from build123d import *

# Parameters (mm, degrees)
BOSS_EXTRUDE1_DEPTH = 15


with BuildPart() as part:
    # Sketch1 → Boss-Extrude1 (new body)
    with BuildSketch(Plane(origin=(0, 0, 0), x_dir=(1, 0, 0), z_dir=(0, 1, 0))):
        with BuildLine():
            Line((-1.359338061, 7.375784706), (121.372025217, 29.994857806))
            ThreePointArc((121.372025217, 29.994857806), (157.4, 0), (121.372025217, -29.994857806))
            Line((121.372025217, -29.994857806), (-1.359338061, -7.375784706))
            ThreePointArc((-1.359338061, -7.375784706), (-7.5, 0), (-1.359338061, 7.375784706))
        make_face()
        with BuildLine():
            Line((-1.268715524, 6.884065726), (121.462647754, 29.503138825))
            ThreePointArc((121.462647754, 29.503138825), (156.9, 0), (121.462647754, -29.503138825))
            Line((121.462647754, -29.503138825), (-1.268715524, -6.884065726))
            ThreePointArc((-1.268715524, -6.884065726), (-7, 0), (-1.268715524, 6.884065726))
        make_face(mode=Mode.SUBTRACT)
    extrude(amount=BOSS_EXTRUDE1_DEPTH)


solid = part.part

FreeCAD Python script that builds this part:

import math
import FreeCAD as App
import Part
import Sketcher
from FreeCAD import Vector
Q = App.Units.Quantity

doc = App.newDocument("Part")
params = doc.addObject("Spreadsheet::Sheet", "Params")
for row, (alias, value) in enumerate([
    ("sketch1_radius", "30 mm"),
    ("sketch1_radius2", "7 mm"),
    ("sketch1_radius3", "7.5 mm"),
    ("pad1_length", "15 mm"),
], start=1):
    params.set(f"A{row}", alias)
    params.set(f"B{row}", "=" + value)
    params.setAlias(f"B{row}", alias)

body = doc.addObject("PartDesign::Body", "Body")

# Sketch on XZ plane
sketch1 = doc.addObject("Sketcher::SketchObject", "Sketch")
body.addObject(sketch1)
sketch1.AttachmentSupport = (doc.XZ_Plane, [""])
sketch1.MapMode = "FlatFace"
sketch1.addGeometry([
    Part.LineSegment(Vector(121, -30, 0), Vector(-1, -7, 0)),  # 0
    Part.ArcOfCircle(Part.Circle(Vector(0, 0, 0), Vector(0, 0, 1), 7), math.radians(100), math.radians(260)),  # 1
    Part.LineSegment(Vector(-1, 7, 0), Vector(121, 30, 0)),  # 2
    Part.ArcOfCircle(Part.Circle(Vector(127, 0, 0), Vector(0, 0, 1), 30), math.radians(-100), math.radians(100)),  # 3
    Part.LineSegment(Vector(-1, -7, 0), Vector(121, -30, 0)),  # 4
    Part.ArcOfCircle(Part.Circle(Vector(127, 0, 0), Vector(0, 0, 1), 30), math.radians(-100), math.radians(100)),  # 5
    Part.LineSegment(Vector(121, 30, 0), Vector(-1, 7, 0)),  # 6
    Part.ArcOfCircle(Part.Circle(Vector(0, 0, 0), Vector(0, 0, 1), 7), math.radians(100), math.radians(260)),  # 7
], False)
sketch1.addConstraint([
    Sketcher.Constraint("Tangent", 0, 2, 1, 2),
    Sketcher.Constraint("Tangent", 1, 1, 2, 1),
    Sketcher.Constraint("Tangent", 2, 2, 3, 2),
    Sketcher.Constraint("Tangent", 3, 1, 0, 1),
    Sketcher.Constraint("Tangent", 4, 2, 5, 1),
    Sketcher.Constraint("Tangent", 5, 2, 6, 1),
    Sketcher.Constraint("Tangent", 6, 2, 7, 1),
    Sketcher.Constraint("Tangent", 7, 2, 4, 1),
    Sketcher.Constraint("Coincident", 1, 3, -1, 1),
    Sketcher.Constraint("Coincident", 7, 3, -1, 1),
    Sketcher.Constraint("Coincident", 5, 3, 3, 3),
    Sketcher.Constraint("PointOnObject", 3, 3, -1),
    Sketcher.Constraint("Parallel", 0, 4),
    Sketcher.Constraint("Radius", 5, Q("30 mm")),
    Sketcher.Constraint("Radius", 7, Q("7 mm")),
    Sketcher.Constraint("Radius", 1, Q("7.5 mm")),
    Sketcher.Constraint("DistanceX", -1, 1, 3, 3, Q("126.9 mm")),
])
sketch1.setExpression("Constraints[13]", "Params.sketch1_radius")
sketch1.setExpression("Constraints[14]", "Params.sketch1_radius2")
sketch1.setExpression("Constraints[15]", "Params.sketch1_radius3")
pad1 = doc.addObject("PartDesign::Pad", "Pad")
body.addObject(pad1)
pad1.Profile = sketch1
pad1.setExpression("Length", "Params.pad1_length")
pad1.Reversed = True

doc.recompute()
